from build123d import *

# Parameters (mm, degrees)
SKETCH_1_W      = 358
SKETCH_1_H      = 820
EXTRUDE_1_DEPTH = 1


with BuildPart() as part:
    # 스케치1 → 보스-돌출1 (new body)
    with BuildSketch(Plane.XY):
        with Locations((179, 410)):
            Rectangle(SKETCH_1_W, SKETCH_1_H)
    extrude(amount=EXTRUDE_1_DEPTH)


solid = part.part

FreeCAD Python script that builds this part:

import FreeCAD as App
import Part
import Sketcher

V = App.Vector


def add_polygon(sketch, points):
    """Adds a closed chain of lines whose ends are joined by coincident constraints."""
    first, n = sketch.GeometryCount, len(points)
    for a, b in zip(points, points[1:] + points[:1]):
        sketch.addGeometry(Part.LineSegment(App.Vector(*a, 0), App.Vector(*b, 0)), False)
    for i in range(n):
        sketch.addConstraint(Sketcher.Constraint("Coincident", first + i, 2, first + (i + 1) % n, 1))

doc = App.newDocument("Part")
params = doc.addObject("Spreadsheet::Sheet", "Params")
for row, (alias, value) in enumerate([
    ("sketch1_width", "358 mm"),
    ("sketch1_height", "820 mm"),
    ("pad1_length", "1 mm"),
], start=1):
    params.set(f"A{row}", alias)
    params.set(f"B{row}", "=" + value)
    params.setAlias(f"B{row}", alias)

body = doc.addObject("PartDesign::Body", "Body")

sketch1 = body.newObject("Sketcher::SketchObject", "Sketch")
sketch1.AttachmentSupport = (doc.getObject("XY_Plane"), [""])
sketch1.MapMode = "FlatFace"
add_polygon(sketch1, [(0, 820), (0, 0), (358, 0), (358, 820)])
sketch1.addConstraint(Sketcher.Constraint("Vertical", 0))
sketch1.addConstraint(Sketcher.Constraint("Horizontal", 1))
sketch1.addConstraint(Sketcher.Constraint("Vertical", 2))
sketch1.addConstraint(Sketcher.Constraint("Horizontal", 3))
sketch1.addConstraint(Sketcher.Constraint("Coincident", 0, 2, -1, 1))
sketch1.addConstraint(Sketcher.Constraint("DistanceX", 1, 1, 1, 2, 358.0))
sketch1.addConstraint(Sketcher.Constraint("DistanceY", 0, 2, 0, 1, 820.0))
sketch1.setExpression("Constraints[9]", "Params.sketch1_width")
sketch1.setExpression("Constraints[10]", "Params.sketch1_height")
pad1 = body.newObject("PartDesign::Pad", "Pad")
pad1.Profile = sketch1
pad1.setExpression("Length", "Params.pad1_length")

doc.recompute()
